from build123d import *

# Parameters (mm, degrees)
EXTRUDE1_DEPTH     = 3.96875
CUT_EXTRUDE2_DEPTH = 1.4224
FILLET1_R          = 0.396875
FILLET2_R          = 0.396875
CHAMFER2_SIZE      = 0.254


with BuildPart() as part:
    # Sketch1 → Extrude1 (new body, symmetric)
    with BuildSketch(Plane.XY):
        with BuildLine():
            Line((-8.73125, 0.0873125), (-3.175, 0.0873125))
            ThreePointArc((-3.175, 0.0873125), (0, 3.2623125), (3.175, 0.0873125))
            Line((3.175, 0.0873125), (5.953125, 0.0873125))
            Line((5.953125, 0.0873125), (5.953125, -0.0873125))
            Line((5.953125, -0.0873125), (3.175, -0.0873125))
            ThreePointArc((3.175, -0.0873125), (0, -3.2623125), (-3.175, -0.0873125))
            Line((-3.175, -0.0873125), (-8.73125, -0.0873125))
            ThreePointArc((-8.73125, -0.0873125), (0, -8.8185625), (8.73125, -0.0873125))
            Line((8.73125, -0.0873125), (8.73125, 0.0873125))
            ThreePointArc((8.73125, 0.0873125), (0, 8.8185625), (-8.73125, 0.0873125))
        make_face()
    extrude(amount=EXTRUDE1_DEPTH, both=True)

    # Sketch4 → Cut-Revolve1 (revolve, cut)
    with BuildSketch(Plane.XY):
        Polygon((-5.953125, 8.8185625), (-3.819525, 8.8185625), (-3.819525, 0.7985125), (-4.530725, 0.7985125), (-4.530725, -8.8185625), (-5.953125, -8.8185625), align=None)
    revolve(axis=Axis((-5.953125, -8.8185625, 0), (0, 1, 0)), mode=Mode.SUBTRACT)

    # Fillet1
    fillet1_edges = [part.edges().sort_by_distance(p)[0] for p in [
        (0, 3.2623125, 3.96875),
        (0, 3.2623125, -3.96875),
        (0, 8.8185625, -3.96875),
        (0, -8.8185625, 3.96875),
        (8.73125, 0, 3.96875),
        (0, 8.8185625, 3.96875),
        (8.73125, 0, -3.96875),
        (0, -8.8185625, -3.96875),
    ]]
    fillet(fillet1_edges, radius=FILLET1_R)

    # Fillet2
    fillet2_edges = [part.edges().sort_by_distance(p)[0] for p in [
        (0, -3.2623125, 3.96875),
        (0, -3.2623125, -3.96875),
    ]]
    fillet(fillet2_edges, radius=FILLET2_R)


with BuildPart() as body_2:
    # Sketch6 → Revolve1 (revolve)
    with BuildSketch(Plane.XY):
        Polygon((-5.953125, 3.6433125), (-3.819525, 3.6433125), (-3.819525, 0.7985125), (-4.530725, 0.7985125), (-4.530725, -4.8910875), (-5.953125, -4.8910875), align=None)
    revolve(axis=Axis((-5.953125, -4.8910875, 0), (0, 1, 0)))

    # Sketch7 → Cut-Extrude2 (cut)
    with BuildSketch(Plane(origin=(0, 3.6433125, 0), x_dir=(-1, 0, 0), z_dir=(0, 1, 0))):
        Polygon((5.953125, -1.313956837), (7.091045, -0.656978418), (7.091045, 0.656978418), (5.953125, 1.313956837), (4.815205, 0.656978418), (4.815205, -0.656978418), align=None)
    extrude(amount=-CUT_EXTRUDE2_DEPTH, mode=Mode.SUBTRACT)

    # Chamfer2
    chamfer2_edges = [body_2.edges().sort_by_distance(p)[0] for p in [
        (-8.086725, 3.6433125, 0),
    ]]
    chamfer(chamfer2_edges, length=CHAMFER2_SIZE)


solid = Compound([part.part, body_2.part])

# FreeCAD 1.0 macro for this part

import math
import FreeCAD as App
import Part
import Sketcher
Q = App.Units.Quantity


def edges_at(feature, points):
    """Names of the edges that pass closest to the given points."""
    edges = feature.Shape.Edges
    near = lambda p: min(range(len(edges)), key=lambda i: edges[i].distToShape(Part.Vertex(*p))[0])
    return sorted({f"Edge{near(p) + 1}" for p in points})

doc = App.newDocument("Part")
body = doc.addObject("PartDesign::Body", "Body")

sketch1 = body.newObject("Sketcher::SketchObject", "Sketch")
sketch1.AttachmentSupport = (doc.getObject("XY_Plane"), [""])
sketch1.MapMode = "FlatFace"
sketch1.addGeometry([
    Part.LineSegment(App.Vector(-8.73, 0.09, 0), App.Vector(-3.17, 0.09, 0)),
    Part.ArcOfCircle(Part.Circle(App.Vector(0, 0.09, 0), App.Vector(0, 0, 1), 3.17), math.radians(0), math.radians(180)),
    Part.LineSegment(App.Vector(3.17, 0.09, 0), App.Vector(5.95, 0.09, 0)),
    Part.LineSegment(App.Vector(5.95, 0.09, 0), App.Vector(5.95, -0.09, 0)),
    Part.LineSegment(App.Vector(5.95, -0.09, 0), App.Vector(3.17, -0.09, 0)),
    Part.ArcOfCircle(Part.Circle(App.Vector(0, -0.09, 0), App.Vector(0, 0, 1), 3.17), math.radians(180), math.radians(360)),
    Part.LineSegment(App.Vector(-3.17, -0.09, 0), App.Vector(-8.73, -0.09, 0)),
    Part.ArcOfCircle(Part.Circle(App.Vector(0, -0.09, 0), App.Vector(0, 0, 1), 8.73), math.radians(180), math.radians(360)),
    Part.LineSegment(App.Vector(8.73, -0.09, 0), App.Vector(8.73, 0.09, 0)),
    Part.ArcOfCircle(Part.Circle(App.Vector(0, 0.09, 0), App.Vector(0, 0, 1), 8.73), math.radians(0), math.radians(180)),
], False)
sketch1.addConstraint([
    Sketcher.Constraint("Coincident", 0, 2, 1, 2),
    Sketcher.Constraint("Coincident", 1, 1, 2, 1),
    Sketcher.Constraint("Coincident", 2, 2, 3, 1),
    Sketcher.Constraint("Coincident", 3, 2, 4, 1),
    Sketcher.Constraint("Coincident", 4, 2, 5, 2),
    Sketcher.Constraint("Coincident", 5, 1, 6, 1),
    Sketcher.Constraint("Coincident", 6, 2, 7, 1),
    Sketcher.Constraint("Tangent", 7, 2, 8, 1),
    Sketcher.Constraint("Tangent", 8, 2, 9, 1),
    Sketcher.Constraint("Coincident", 9, 2, 0, 1),
    Sketcher.Constraint("Horizontal", 0),
    Sketcher.Constraint("Horizontal", 2),
    Sketcher.Constraint("Vertical", 3),
    Sketcher.Constraint("Horizontal", 4),
    Sketcher.Constraint("Horizontal", 6),
    Sketcher.Constraint("Vertical", 8),
    Sketcher.Constraint("Coincident", 7, 3, 5, 3),
    Sketcher.Constraint("Coincident", 9, 3, 1, 3),
    Sketcher.Constraint("Equal", 1, 5),
    Sketcher.Constraint("Equal", 7, 9),
    Sketcher.Constraint("Symmetric", 1, 3, 5, 3, -1, 1),
    Sketcher.Constraint("Horizontal", 9, 3, 0, 2),
    Sketcher.Constraint("Horizontal", 0, 2, 1, 1),
    Sketcher.Constraint("Horizontal", 7, 3, 3, 2),
    Sketcher.Constraint("Horizontal", 4, 2, 5, 1),
    Sketcher.Constraint("Radius", 1, Q("0.125 in")),
    Sketcher.Constraint("Radius", 7, Q("0.34375 in")),
    Sketcher.Constraint("DistanceX", 2, 1, 2, 2, Q("0.109375 in")),
    Sketcher.Constraint("DistanceY", 3, 2, 3, 1, 0.174625),
])
pad1 = body.newObject("PartDesign::Pad", "Pad")
pad1.Profile = sketch1
pad1.Length = Q("0.3125 in")
pad1.Midplane = True

sketch2 = body.newObject("Sketcher::SketchObject", "Sketch001")
sketch2.AttachmentSupport = (doc.getObject("XY_Plane"), [""])
sketch2.MapMode = "FlatFace"
sketch2.addGeometry([
    Part.LineSegment(App.Vector(-3.8, 8.8, 0), App.Vector(-6, 8.8, 0)),
    Part.LineSegment(App.Vector(-6, 8.8, 0), App.Vector(-6, -8.8, 0)),
    Part.LineSegment(App.Vector(-6, -8.8, 0), App.Vector(-4.5, -8.8, 0)),
    Part.LineSegment(App.Vector(-4.5, -8.8, 0), App.Vector(-4.5, 0.8, 0)),
    Part.LineSegment(App.Vector(-4.5, 0.8, 0), App.Vector(-3.8, 0.8, 0)),
    Part.LineSegment(App.Vector(-3.8, 0.8, 0), App.Vector(-3.8, 8.8, 0)),
], False)
sketch2.addGeometry(Part.LineSegment(App.Vector(-6, -8.8, 0), App.Vector(-6, 8.8, 0)), True)
sketch2.addConstraint([
    Sketcher.Constraint("Coincident", 0, 2, 1, 1),
    Sketcher.Constraint("Coincident", 1, 2, 2, 1),
    Sketcher.Constraint("Coincident", 2, 2, 3, 1),
    Sketcher.Constraint("Coincident", 3, 2, 4, 1),
    Sketcher.Constraint("Coincident", 4, 2, 5, 1),
    Sketcher.Constraint("Coincident", 5, 2, 0, 1),
    Sketcher.Constraint("Horizontal", 0),
    Sketcher.Constraint("Vertical", 1),
    Sketcher.Constraint("Horizontal", 2),
    Sketcher.Constraint("Vertical", 3),
    Sketcher.Constraint("Horizontal", 4),
    Sketcher.Constraint("Vertical", 5),
    Sketcher.Constraint("Vertical", 6),
    Sketcher.Constraint("Coincident", 6, 1, 1, 2),
    Sketcher.Constraint("Horizontal", 5, 2, 6, 2),
    Sketcher.Constraint("DistanceX", 0, 2, 0, 1, Q("0.084 in")),
    Sketcher.Constraint("DistanceX", 2, 1, 2, 2, Q("0.056 in")),
    Sketcher.Constraint("DistanceX", 0, 2, -1, 1, Q("0.234375 in")),
    Sketcher.Constraint("DistanceY", 5, 1, 5, 2, 8.02005),
    Sketcher.Constraint("DistanceY", 1, 2, 1, 1, 17.637125),
    Sketcher.Constraint("DistanceY", -1, 1, 0, 2, 8.818563),
])
groove = body.newObject("PartDesign::Groove", "Groove")
groove.Profile = sketch2
groove.ReferenceAxis = (sketch2, ["Axis0"])
groove.Angle = 360
doc.recompute()

fillet = body.newObject("PartDesign::Fillet", "Fillet")
fillet.Base = (groove, edges_at(groove, [
    (0, 3.262, 3.969),
    (0, 3.262, -3.969),
    (0, 8.819, -3.969),
    (0, -8.819, 3.969),
    (8.731, 0, 3.969),
    (0, 8.819, 3.969),
    (8.731, 0, -3.969),
    (0, -8.819, -3.969),
]))
fillet.Radius = Q("0.015625 in")
doc.recompute()

fillet2 = body.newObject("PartDesign::Fillet", "Fillet001")
fillet2.Base = (fillet, edges_at(fillet, [(0, -3.262, 3.969), (0, -3.262, -3.969)]))
fillet2.Radius = Q("0.015625 in")
body2 = doc.addObject("PartDesign::Body", "Body001")

sketch3 = body2.newObject("Sketcher::SketchObject", "Sketch002")
sketch3.AttachmentSupport = (doc.getObject("XY_Plane001"), [""])
sketch3.MapMode = "FlatFace"
sketch3.addGeometry([
    Part.LineSegment(App.Vector(-3.8, 3.6, 0), App.Vector(-6, 3.6, 0)),
    Part.LineSegment(App.Vector(-6, 3.6, 0), App.Vector(-6, -4.9, 0)),
    Part.LineSegment(App.Vector(-6, -4.9, 0), App.Vector(-4.5, -4.9, 0)),
    Part.LineSegment(App.Vector(-4.5, -4.9, 0), App.Vector(-4.5, 0.8, 0)),
    Part.LineSegment(App.Vector(-4.5, 0.8, 0), App.Vector(-3.8, 0.8, 0)),
    Part.LineSegment(App.Vector(-3.8, 0.8, 0), App.Vector(-3.8, 3.6, 0)),
], False)
sketch3.addGeometry(Part.LineSegment(App.Vector(-6, -4.9, 0), App.Vector(-6, 3.6, 0)), True)
sketch3.addConstraint([
    Sketcher.Constraint("Coincident", 0, 2, 1, 1),
    Sketcher.Constraint("Coincident", 1, 2, 2, 1),
    Sketcher.Constraint("Coincident", 2, 2, 3, 1),
    Sketcher.Constraint("Coincident", 3, 2, 4, 1),
    Sketcher.Constraint("Coincident", 4, 2, 5, 1),
    Sketcher.Constraint("Coincident", 5, 2, 0, 1),
    Sketcher.Constraint("Horizontal", 0),
    Sketcher.Constraint("Vertical", 1),
    Sketcher.Constraint("Horizontal", 2),
    Sketcher.Constraint("Vertical", 3),
    Sketcher.Constraint("Horizontal", 4),
    Sketcher.Constraint("Vertical", 5),
    Sketcher.Constraint("Vertical", 6),
    Sketcher.Constraint("Coincident", 6, 1, 1, 2),
    Sketcher.Constraint("Horizontal", 5, 2, 6, 2),
    Sketcher.Constraint("DistanceX", 0, 2, 0, 1, Q("0.084 in")),
    Sketcher.Constraint("DistanceX", 2, 1, 2, 2, Q("0.056 in")),
    Sketcher.Constraint("DistanceY", 1, 2, 1, 1, Q("0.336 in")),
    Sketcher.Constraint("DistanceY", 3, 1, 3, 2, Q("0.224 in")),
    Sketcher.Constraint("DistanceX", 0, 2, -1, 1, Q("0.234375 in")),
    Sketcher.Constraint("DistanceY", -1, 1, 0, 2, 3.643312),
])
revolution = body2.newObject("PartDesign::Revolution", "Revolution")
revolution.Profile = sketch3
revolution.ReferenceAxis = (sketch3, ["Axis0"])
revolution.Angle = 360

sketch4 = body2.newObject("Sketcher::SketchObject", "Sketch003")
sketch4.AttachmentSupport = (doc.getObject("XZ_Plane001"), [""])
sketch4.MapMode = "FlatFace"
sketch4.AttachmentOffset = App.Placement(App.Vector(0, 0, -3.643312), App.Rotation())
sketch4.addGeometry([
    Part.LineSegment(App.Vector(-6, -1.3, 0), App.Vector(-7.1, -0.7, 0)),
    Part.LineSegment(App.Vector(-7.1, -0.7, 0), App.Vector(-7.1, 0.7, 0)),
    Part.LineSegment(App.Vector(-7.1, 0.7, 0), App.Vector(-6, 1.3, 0)),
    Part.LineSegment(App.Vector(-6, 1.3, 0), App.Vector(-4.8, 0.7, 0)),
    Part.LineSegment(App.Vector(-4.8, 0.7, 0), App.Vector(-4.8, -0.7, 0)),
    Part.LineSegment(App.Vector(-4.8, -0.7, 0), App.Vector(-6, -1.3, 0)),
], False)
sketch4.addConstraint([
    Sketcher.Constraint("Coincident", 0, 2, 1, 1),
    Sketcher.Constraint("Coincident", 1, 2, 2, 1),
    Sketcher.Constraint("Coincident", 2, 2, 3, 1),
    Sketcher.Constraint("Coincident", 3, 2, 4, 1),
    Sketcher.Constraint("Coincident", 4, 2, 5, 1),
    Sketcher.Constraint("Coincident", 5, 2, 0, 1),
    Sketcher.Constraint("Vertical", 1),
    Sketcher.Constraint("Vertical", 4),
    Sketcher.Constraint("Symmetric", 2, 2, 5, 2, -1),
    Sketcher.Constraint("Parallel", 0, 3),
    Sketcher.Constraint("Parallel", 2, 5),
    Sketcher.Constraint("Horizontal", 1, 2, 3, 2),
    Sketcher.Constraint("Horizontal", 0, 2, 4, 2),
    Sketcher.Constraint("Angle", 0, Q("150 deg")),
    Sketcher.Constraint("DistanceX", 2, 2, -1, 1, Q("0.234375 in")),
    Sketcher.Constraint("DistanceX", 1, 2, 2, 2, Q("0.0448 in")),
    Sketcher.Constraint("DistanceY", 1, 1, 1, 2, 1.313957),
])
pocket1 = body2.newObject("PartDesign::Pocket", "Pocket")
pocket1.Profile = sketch4
pocket1.Length = Q("0.056 in")
pocket1.Reversed = True
doc.recompute()

chamfer = body2.newObject("PartDesign::Chamfer", "Chamfer")
chamfer.Base = (pocket1, edges_at(pocket1, [(-8.087, 3.643, 0)]))
chamfer.Size = Q("0.01 in")

doc.recompute()
